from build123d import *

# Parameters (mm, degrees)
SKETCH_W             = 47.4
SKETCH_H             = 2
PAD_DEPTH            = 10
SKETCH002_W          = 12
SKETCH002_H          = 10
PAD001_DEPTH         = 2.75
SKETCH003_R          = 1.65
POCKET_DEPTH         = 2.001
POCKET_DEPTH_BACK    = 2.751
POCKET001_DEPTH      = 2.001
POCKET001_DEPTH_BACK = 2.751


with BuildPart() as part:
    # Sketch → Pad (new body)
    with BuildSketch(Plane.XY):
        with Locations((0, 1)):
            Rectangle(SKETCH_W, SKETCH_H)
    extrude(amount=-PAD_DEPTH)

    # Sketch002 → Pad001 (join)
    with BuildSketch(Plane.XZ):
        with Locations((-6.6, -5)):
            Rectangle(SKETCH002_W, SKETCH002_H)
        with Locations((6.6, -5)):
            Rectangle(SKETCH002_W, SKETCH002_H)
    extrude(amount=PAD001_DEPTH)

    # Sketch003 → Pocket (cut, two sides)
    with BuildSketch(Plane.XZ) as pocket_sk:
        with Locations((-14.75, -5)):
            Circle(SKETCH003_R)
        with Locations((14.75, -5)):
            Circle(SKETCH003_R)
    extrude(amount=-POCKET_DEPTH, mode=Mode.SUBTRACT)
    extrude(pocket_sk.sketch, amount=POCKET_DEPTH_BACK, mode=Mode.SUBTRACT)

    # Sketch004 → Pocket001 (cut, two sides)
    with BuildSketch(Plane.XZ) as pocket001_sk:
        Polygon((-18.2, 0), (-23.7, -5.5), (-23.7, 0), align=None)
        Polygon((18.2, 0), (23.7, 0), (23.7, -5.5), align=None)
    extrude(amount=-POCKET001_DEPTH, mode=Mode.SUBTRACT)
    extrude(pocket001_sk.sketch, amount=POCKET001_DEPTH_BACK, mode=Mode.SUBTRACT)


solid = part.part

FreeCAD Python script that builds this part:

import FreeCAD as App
import Part
import Sketcher
Q = App.Units.Quantity

doc = App.newDocument("Part")
body = doc.addObject("PartDesign::Body", "Body")

sketch1 = body.newObject("Sketcher::SketchObject", "Sketch")
sketch1.AttachmentSupport = (doc.getObject("XY_Plane"), [""])
sketch1.MapMode = "FlatFace"
sketch1.addGeometry([
    Part.LineSegment(App.Vector(-23.7, 2, 0), App.Vector(-23.7, 0, 0)),
    Part.LineSegment(App.Vector(-23.7, 0, 0), App.Vector(23.7, 0, 0)),
    Part.LineSegment(App.Vector(23.7, 0, 0), App.Vector(23.7, 2, 0)),
    Part.LineSegment(App.Vector(23.7, 2, 0), App.Vector(-23.7, 2, 0)),
], False)
sketch1.addConstraint([
    Sketcher.Constraint("Coincident", 0, 2, 1, 1),
    Sketcher.Constraint("Coincident", 1, 2, 2, 1),
    Sketcher.Constraint("Coincident", 2, 2, 3, 1),
    Sketcher.Constraint("Coincident", 3, 2, 0, 1),
    Sketcher.Constraint("Vertical", 0),
    Sketcher.Constraint("Horizontal", 1),
    Sketcher.Constraint("Vertical", 2),
    Sketcher.Constraint("Horizontal", 3),
    Sketcher.Constraint("Symmetric", 0, 2, 1, 2, -1, 1),
    Sketcher.Constraint("DistanceY", 0, 2, 0, 1, Q("2 mm")),
    Sketcher.Constraint("DistanceX", 1, 1, 1, 2, Q("47.4 mm")),
])
pad1 = body.newObject("PartDesign::Pad", "Pad")
pad1.Profile = sketch1
pad1.Length = 10
pad1.Reversed = True

sketch2 = body.newObject("Sketcher::SketchObject", "Sketch001")
sketch2.AttachmentSupport = (doc.getObject("XZ_Plane"), [""])
sketch2.MapMode = "FlatFace"
sketch2.addGeometry([
    Part.LineSegment(App.Vector(-13, 0, 0), App.Vector(-13, -10, 0)),
    Part.LineSegment(App.Vector(-13, -10, 0), App.Vector(-1, -10, 0)),
    Part.LineSegment(App.Vector(-1, -10, 0), App.Vector(-1, 0, 0)),
    Part.LineSegment(App.Vector(-1, 0, 0), App.Vector(-13, 0, 0)),
    Part.LineSegment(App.Vector(1, 0, 0), App.Vector(1, -10, 0)),
    Part.LineSegment(App.Vector(1, -10, 0), App.Vector(13, -10, 0)),
    Part.LineSegment(App.Vector(13, -10, 0), App.Vector(13, 0, 0)),
    Part.LineSegment(App.Vector(13, 0, 0), App.Vector(1, 0, 0)),
], False)
sketch2.addConstraint([
    Sketcher.Constraint("Coincident", 0, 2, 1, 1),
    Sketcher.Constraint("Coincident", 1, 2, 2, 1),
    Sketcher.Constraint("Coincident", 2, 2, 3, 1),
    Sketcher.Constraint("Coincident", 3, 2, 0, 1),
    Sketcher.Constraint("Coincident", 4, 2, 5, 1),
    Sketcher.Constraint("Coincident", 5, 2, 6, 1),
    Sketcher.Constraint("Coincident", 6, 2, 7, 1),
    Sketcher.Constraint("Coincident", 7, 2, 4, 1),
    Sketcher.Constraint("Vertical", 0),
    Sketcher.Constraint("Horizontal", 1),
    Sketcher.Constraint("Vertical", 2),
    Sketcher.Constraint("Horizontal", 3),
    Sketcher.Constraint("Vertical", 4),
    Sketcher.Constraint("Horizontal", 5),
    Sketcher.Constraint("Vertical", 6),
    Sketcher.Constraint("Horizontal", 7),
    Sketcher.Constraint("Symmetric", 3, 2, 6, 2, -1, 1),
    Sketcher.Constraint("Symmetric", 1, 2, 4, 2, -2),
    Sketcher.Constraint("PointOnObject", 2, 2, -1),
    Sketcher.Constraint("DistanceX", 1, 1, 1, 2, Q("12 mm")),
    Sketcher.Constraint("DistanceY", 0, 2, 0, 1, Q("10 mm")),
    Sketcher.Constraint("DistanceX", 0, 2, -1, 1, Q("12.6 mm")),
])
pad2 = body.newObject("PartDesign::Pad", "Pad001")
pad2.Profile = sketch2
pad2.Length = 2.75

sketch3 = body.newObject("Sketcher::SketchObject", "Sketch002")
sketch3.AttachmentSupport = (doc.getObject("XZ_Plane"), [""])
sketch3.MapMode = "FlatFace"
sketch3.addGeometry([
    Part.Circle(App.Vector(-14.8, -5, 0), App.Vector(0, 0, 1), 1.6),
    Part.Circle(App.Vector(14.8, -5, 0), App.Vector(0, 0, 1), 1.6),
], False)
sketch3.addConstraint([
    Sketcher.Constraint("Equal", 0, 1),
    Sketcher.Constraint("Symmetric", 0, 3, 1, 3, -2),
    Sketcher.Constraint("Diameter", 0, Q("3.3 mm")),
    Sketcher.Constraint("DistanceY", 0, 3, -1, 1, Q("5 mm")),
    Sketcher.Constraint("DistanceX", 0, 3, 1, 3, Q("29.5 mm")),
])
pocket1 = body.newObject("PartDesign::Pocket", "Pocket")
pocket1.Profile = sketch3
pocket1.Type = "ThroughAll"
pocket1.Midplane = True

sketch4 = body.newObject("Sketcher::SketchObject", "Sketch003")
sketch4.AttachmentSupport = (doc.getObject("XZ_Plane"), [""])
sketch4.MapMode = "FlatFace"
sketch4.addGeometry([
    Part.LineSegment(App.Vector(-24, -6, 0), App.Vector(-18, 0, 0)),
    Part.LineSegment(App.Vector(-18, 0, 0), App.Vector(-24, 0, 0)),
    Part.LineSegment(App.Vector(-24, 0, 0), App.Vector(-24, -6, 0)),
    Part.LineSegment(App.Vector(24, 0, 0), App.Vector(18, 0, 0)),
    Part.LineSegment(App.Vector(18, 0, 0), App.Vector(24, -6, 0)),
    Part.LineSegment(App.Vector(24, -6, 0), App.Vector(24, 0, 0)),
], False)
sketch4.addConstraint([
    Sketcher.Constraint("Coincident", 0, 2, 1, 1),
    Sketcher.Constraint("Coincident", 1, 2, 2, 1),
    Sketcher.Constraint("Coincident", 2, 2, 0, 1),
    Sketcher.Constraint("Coincident", 3, 2, 4, 1),
    Sketcher.Constraint("Coincident", 4, 2, 5, 1),
    Sketcher.Constraint("Coincident", 5, 2, 3, 1),
    Sketcher.Constraint("Horizontal", 1),
    Sketcher.Constraint("Vertical", 2),
    Sketcher.Constraint("Horizontal", 3),
    Sketcher.Constraint("Vertical", 5),
    Sketcher.Constraint("Symmetric", 0, 2, 3, 2, -1, 1),
    Sketcher.Constraint("Symmetric", 2, 2, 4, 2, -2),
    Sketcher.Constraint("PointOnObject", 0, 2, -1),
    Sketcher.Constraint("Perpendicular", 0, 4),
    Sketcher.Constraint("DistanceX", 1, 2, 1, 1, Q("5.5 mm")),
    Sketcher.Constraint("DistanceX", 0, 2, -1, 1, Q("18.2 mm")),
])
pocket2 = body.newObject("PartDesign::Pocket", "Pocket001")
pocket2.Profile = sketch4
pocket2.Type = "ThroughAll"
pocket2.Midplane = True

doc.recompute()
